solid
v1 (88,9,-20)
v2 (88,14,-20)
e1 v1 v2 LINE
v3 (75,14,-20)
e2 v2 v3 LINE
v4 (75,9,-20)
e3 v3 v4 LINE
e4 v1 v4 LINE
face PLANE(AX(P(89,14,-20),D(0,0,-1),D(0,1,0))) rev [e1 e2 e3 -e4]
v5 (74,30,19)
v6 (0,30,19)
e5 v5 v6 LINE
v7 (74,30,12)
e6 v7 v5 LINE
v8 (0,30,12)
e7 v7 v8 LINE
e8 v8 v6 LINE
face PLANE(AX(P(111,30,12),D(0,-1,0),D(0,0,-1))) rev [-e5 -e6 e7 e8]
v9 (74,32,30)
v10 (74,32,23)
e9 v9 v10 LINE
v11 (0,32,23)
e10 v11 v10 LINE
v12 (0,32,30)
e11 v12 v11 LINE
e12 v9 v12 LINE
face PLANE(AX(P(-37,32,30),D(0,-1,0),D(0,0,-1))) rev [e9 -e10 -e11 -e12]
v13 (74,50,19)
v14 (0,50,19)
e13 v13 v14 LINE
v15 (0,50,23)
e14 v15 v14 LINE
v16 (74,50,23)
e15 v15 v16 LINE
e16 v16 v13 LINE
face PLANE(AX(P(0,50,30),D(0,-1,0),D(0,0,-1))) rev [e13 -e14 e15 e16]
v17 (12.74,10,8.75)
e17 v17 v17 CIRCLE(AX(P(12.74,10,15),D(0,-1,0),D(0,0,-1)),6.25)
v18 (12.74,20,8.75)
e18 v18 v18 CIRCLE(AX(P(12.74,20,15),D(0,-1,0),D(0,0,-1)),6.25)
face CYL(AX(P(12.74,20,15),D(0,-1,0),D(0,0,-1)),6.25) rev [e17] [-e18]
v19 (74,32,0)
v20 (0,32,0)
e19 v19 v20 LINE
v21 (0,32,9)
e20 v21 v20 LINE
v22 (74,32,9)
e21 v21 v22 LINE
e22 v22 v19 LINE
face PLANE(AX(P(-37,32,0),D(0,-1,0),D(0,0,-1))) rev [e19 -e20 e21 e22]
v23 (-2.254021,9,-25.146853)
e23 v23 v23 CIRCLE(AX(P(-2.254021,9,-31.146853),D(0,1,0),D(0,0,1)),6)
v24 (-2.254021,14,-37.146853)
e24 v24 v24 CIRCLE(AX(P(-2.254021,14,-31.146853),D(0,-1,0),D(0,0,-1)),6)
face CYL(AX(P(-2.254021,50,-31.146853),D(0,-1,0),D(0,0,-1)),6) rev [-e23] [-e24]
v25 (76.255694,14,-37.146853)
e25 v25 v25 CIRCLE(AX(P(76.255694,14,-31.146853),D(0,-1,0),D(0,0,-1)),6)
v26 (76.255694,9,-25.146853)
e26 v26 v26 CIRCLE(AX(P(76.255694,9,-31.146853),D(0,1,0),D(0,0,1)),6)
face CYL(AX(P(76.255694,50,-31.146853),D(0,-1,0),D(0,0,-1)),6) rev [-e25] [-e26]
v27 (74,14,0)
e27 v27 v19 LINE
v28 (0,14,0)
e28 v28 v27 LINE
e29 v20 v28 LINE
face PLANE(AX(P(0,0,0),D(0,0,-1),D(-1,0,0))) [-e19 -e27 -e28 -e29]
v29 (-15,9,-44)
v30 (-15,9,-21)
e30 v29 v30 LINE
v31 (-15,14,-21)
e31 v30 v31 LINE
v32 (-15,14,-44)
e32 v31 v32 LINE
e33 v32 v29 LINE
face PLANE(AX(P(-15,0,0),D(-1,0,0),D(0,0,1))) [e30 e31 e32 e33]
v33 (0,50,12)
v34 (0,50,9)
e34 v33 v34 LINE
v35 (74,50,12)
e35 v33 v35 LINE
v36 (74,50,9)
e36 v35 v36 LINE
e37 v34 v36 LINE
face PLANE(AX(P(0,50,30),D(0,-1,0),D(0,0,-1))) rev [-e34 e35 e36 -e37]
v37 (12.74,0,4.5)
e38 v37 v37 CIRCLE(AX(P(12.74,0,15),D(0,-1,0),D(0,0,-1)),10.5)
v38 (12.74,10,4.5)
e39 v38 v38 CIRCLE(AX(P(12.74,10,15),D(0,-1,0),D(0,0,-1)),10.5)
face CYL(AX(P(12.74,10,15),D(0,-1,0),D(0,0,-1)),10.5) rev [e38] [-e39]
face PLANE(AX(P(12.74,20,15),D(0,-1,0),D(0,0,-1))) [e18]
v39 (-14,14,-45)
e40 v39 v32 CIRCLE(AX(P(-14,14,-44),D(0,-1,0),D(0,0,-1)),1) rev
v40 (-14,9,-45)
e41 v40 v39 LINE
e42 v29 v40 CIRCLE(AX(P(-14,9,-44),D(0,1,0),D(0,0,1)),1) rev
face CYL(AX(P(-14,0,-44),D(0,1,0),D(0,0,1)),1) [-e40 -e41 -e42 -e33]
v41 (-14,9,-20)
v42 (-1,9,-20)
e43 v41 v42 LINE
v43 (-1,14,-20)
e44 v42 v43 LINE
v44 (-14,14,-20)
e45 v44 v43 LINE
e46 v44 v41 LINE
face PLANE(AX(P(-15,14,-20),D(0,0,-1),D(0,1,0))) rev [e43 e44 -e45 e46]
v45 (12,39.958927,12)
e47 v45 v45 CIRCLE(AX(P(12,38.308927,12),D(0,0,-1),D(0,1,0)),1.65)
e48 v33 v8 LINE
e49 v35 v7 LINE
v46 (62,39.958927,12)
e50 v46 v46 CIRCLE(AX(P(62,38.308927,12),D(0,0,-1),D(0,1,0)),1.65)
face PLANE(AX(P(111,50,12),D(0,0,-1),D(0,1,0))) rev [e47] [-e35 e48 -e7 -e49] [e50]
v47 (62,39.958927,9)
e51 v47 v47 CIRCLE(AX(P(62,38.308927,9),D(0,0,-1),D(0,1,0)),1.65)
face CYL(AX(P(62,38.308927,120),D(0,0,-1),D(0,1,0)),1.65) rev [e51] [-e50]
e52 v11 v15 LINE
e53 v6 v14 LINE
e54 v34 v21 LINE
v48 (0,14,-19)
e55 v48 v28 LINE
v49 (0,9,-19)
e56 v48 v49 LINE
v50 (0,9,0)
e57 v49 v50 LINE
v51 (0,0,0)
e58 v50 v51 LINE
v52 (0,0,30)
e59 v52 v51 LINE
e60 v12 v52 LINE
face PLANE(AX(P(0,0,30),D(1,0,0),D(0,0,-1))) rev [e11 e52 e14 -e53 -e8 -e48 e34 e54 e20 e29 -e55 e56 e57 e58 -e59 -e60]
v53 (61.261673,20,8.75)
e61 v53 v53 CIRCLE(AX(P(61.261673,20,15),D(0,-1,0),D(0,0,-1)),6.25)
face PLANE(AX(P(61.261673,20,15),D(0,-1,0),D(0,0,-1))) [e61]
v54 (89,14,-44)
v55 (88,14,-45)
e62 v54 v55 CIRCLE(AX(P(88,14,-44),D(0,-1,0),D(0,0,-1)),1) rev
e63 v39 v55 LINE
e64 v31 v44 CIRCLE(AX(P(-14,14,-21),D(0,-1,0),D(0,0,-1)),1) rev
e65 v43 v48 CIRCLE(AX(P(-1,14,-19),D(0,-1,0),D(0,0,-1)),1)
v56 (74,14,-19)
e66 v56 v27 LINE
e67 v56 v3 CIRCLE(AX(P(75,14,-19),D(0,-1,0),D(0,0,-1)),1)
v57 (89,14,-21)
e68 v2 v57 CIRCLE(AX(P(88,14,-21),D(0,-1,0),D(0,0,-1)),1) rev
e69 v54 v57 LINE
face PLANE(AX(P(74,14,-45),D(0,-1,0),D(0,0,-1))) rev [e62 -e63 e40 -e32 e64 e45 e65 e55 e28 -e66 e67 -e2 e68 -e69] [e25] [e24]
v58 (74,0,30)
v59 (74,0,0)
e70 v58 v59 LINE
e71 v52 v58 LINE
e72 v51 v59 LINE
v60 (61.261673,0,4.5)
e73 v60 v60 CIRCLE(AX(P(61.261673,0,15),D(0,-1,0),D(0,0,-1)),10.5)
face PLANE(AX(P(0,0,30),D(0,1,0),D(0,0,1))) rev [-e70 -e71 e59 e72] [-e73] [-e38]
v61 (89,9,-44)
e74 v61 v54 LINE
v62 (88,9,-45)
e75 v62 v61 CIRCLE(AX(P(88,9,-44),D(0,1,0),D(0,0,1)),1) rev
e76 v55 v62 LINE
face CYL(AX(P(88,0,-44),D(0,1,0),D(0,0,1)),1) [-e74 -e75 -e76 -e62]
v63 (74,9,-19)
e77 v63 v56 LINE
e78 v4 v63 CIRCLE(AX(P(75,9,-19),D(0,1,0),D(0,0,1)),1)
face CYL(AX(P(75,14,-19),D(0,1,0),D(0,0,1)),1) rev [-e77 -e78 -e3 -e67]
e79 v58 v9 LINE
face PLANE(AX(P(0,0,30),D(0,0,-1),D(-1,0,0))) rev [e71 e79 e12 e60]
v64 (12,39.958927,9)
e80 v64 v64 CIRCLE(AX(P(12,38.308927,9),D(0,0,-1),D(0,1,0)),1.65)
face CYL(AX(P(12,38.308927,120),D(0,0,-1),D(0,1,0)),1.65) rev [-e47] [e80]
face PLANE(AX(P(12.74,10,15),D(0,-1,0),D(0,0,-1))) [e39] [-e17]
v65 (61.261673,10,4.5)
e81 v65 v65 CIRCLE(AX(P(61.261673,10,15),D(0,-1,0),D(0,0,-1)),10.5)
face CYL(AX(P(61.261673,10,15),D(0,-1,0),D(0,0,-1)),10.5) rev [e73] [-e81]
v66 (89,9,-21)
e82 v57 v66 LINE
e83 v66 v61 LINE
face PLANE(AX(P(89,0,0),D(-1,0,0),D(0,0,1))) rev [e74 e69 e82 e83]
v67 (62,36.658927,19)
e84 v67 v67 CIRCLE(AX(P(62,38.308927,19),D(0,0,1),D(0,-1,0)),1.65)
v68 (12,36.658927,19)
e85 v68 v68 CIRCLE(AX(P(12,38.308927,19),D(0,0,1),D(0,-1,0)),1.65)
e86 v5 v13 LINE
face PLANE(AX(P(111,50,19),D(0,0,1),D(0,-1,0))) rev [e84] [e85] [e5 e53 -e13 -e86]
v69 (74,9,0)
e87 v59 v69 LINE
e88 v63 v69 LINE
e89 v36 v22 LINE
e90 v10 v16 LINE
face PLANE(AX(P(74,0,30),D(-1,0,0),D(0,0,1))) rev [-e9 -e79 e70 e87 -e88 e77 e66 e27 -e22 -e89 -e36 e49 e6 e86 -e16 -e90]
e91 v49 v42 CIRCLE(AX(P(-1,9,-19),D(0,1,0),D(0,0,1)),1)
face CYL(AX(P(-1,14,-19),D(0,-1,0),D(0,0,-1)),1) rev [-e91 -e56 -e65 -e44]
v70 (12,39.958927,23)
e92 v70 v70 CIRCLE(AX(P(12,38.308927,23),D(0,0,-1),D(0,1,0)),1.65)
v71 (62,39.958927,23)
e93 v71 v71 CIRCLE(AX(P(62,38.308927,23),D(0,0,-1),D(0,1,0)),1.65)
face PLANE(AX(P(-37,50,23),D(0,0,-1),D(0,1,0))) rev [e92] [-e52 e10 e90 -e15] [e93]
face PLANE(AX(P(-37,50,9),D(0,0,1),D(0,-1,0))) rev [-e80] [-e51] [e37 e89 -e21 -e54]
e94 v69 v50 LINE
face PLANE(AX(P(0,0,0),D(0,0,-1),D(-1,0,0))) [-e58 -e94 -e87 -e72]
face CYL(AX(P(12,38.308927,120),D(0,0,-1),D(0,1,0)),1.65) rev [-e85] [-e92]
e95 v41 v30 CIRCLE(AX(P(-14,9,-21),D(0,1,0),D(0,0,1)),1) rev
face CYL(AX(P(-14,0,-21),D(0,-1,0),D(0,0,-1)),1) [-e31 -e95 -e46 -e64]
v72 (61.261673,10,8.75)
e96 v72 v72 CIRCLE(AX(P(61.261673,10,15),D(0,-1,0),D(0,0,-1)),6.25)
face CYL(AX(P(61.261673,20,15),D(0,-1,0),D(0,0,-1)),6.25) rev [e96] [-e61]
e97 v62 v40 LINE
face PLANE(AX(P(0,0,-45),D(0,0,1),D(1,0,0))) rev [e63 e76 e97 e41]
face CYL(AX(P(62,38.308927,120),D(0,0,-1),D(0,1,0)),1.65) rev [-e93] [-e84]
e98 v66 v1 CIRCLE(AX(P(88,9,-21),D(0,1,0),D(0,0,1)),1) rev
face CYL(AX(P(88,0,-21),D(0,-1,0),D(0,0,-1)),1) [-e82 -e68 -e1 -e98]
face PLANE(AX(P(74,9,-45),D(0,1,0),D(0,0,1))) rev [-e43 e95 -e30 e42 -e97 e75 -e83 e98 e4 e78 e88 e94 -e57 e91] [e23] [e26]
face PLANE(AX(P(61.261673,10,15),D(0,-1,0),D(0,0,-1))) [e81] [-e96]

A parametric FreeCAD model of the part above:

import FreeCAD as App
import Part
import Sketcher
Q = App.Units.Quantity


def edges_at(feature, points):
    """Names of the edges that pass closest to the given points."""
    edges = feature.Shape.Edges
    near = lambda p: min(range(len(edges)), key=lambda i: edges[i].distToShape(Part.Vertex(*p))[0])
    return sorted({f"Edge{near(p) + 1}" for p in points})


def add_polygon(sketch, points):
    """Adds a closed chain of lines whose ends are joined by coincident constraints."""
    first, n = sketch.GeometryCount, len(points)
    for a, b in zip(points, points[1:] + points[:1]):
        sketch.addGeometry(Part.LineSegment(App.Vector(*a, 0), App.Vector(*b, 0)), False)
    for i in range(n):
        sketch.addConstraint(Sketcher.Constraint("Coincident", first + i, 2, first + (i + 1) % n, 1))

doc = App.newDocument("Part")
body = doc.addObject("PartDesign::Body", "Body")

sketch1 = doc.addObject("Sketcher::SketchObject", "Sketch")
body.addObject(sketch1)
sketch1.AttachmentSupport = (doc.XY_Plane, [""])
sketch1.MapMode = "FlatFace"
add_polygon(sketch1, [(0, 50), (0, 0), (74, 0), (74, 50)])
sketch1.addConstraint([
    Sketcher.Constraint("Vertical", 0),
    Sketcher.Constraint("Horizontal", 1),
    Sketcher.Constraint("Vertical", 2),
    Sketcher.Constraint("Horizontal", 3),
    Sketcher.Constraint("Coincident", 0, 2, -1, 1),
    Sketcher.Constraint("DistanceX", 1, 1, 1, 2, Q("74 mm")),
    Sketcher.Constraint("DistanceY", 0, 2, 0, 1, Q("50 mm")),
])
pad1 = doc.addObject("PartDesign::Pad", "Pad")
body.addObject(pad1)
pad1.Profile = sketch1
pad1.Length = 30

sketch2 = doc.addObject("Sketcher::SketchObject", "Sketch001")
body.addObject(sketch2)
sketch2.AttachmentSupport = (doc.XZ_Plane, [""])
sketch2.MapMode = "FlatFace"
sketch2.addGeometry([
    Part.Circle(App.Vector(13, 15, 0), App.Vector(0, 0, 1), 10),
    Part.Circle(App.Vector(61, 15, 0), App.Vector(0, 0, 1), 10),
], False)
sketch2.addConstraint([
    Sketcher.Constraint("Equal", 0, 1),
    Sketcher.Constraint("Horizontal", 0, 3, 1, 3),
    Sketcher.Constraint("Diameter", 0, Q("21 mm")),
    Sketcher.Constraint("DistanceY", -1, 1, 0, 3, Q("15 mm")),
    Sketcher.Constraint("DistanceX", -1, 1, 0, 3, Q("12.74 mm")),
    Sketcher.Constraint("DistanceX", -1, 1, 1, 3, Q("61.261673 mm")),
])
pocket1 = doc.addObject("PartDesign::Pocket", "Pocket")
body.addObject(pocket1)
pocket1.Profile = sketch2
pocket1.Length = 10

sketch3 = doc.addObject("Sketcher::SketchObject", "Sketch002")
body.addObject(sketch3)
sketch3.AttachmentSupport = (doc.XZ_Plane, [""])
sketch3.MapMode = "FlatFace"
sketch3.AttachmentOffset = App.Placement(App.Vector(0, 0, -10), App.Rotation())
sketch3.addGeometry([
    Part.Circle(App.Vector(13, 15, 0), App.Vector(0, 0, 1), 6),
    Part.Circle(App.Vector(61, 15, 0), App.Vector(0, 0, 1), 6),
], False)
sketch3.addConstraint([
    Sketcher.Constraint("Equal", 0, 1),
    Sketcher.Constraint("Horizontal", 0, 3, 1, 3),
    Sketcher.Constraint("Diameter", 0, Q("12.5 mm")),
    Sketcher.Constraint("DistanceY", -1, 1, 0, 3, Q("15 mm")),
    Sketcher.Constraint("DistanceX", -1, 1, 0, 3, Q("12.74 mm")),
    Sketcher.Constraint("DistanceX", -1, 1, 1, 3, Q("61.261673 mm")),
])
pocket2 = doc.addObject("PartDesign::Pocket", "Pocket001")
body.addObject(pocket2)
pocket2.Profile = sketch3
pocket2.Length = 10

sketch4 = doc.addObject("Sketcher::SketchObject", "Sketch003")
body.addObject(sketch4)
sketch4.AttachmentSupport = (doc.YZ_Plane, [""])
sketch4.MapMode = "FlatFace"
add_polygon(sketch4, [(50, 12), (30, 12), (30, 19), (50, 19)])
sketch4.addConstraint([
    Sketcher.Constraint("Horizontal", 0),
    Sketcher.Constraint("Vertical", 1),
    Sketcher.Constraint("Horizontal", 2),
    Sketcher.Constraint("Vertical", 3),
    Sketcher.Constraint("DistanceX", 0, 2, 0, 1, Q("20 mm")),
    Sketcher.Constraint("DistanceY", 1, 1, 1, 2, Q("7 mm")),
    Sketcher.Constraint("DistanceX", -1, 1, 0, 2, Q("30 mm")),
    Sketcher.Constraint("DistanceY", -1, 1, 0, 2, Q("12 mm")),
])
pocket3 = doc.addObject("PartDesign::Pocket", "Pocket002")
body.addObject(pocket3)
pocket3.Profile = sketch4
pocket3.Length = 111
pocket3.Reversed = True

sketch5 = doc.addObject("Sketcher::SketchObject", "Sketch004")
body.addObject(sketch5)
sketch5.AttachmentSupport = (doc.YZ_Plane, [""])
sketch5.MapMode = "FlatFace"
sketch5.AttachmentOffset = App.Placement(App.Vector(0, 0, 74), App.Rotation())
add_polygon(sketch5, [(50, 30), (32, 30), (32, 23), (50, 23)])
add_polygon(sketch5, [(50, 9), (32, 9), (32, 0), (50, 0)])
sketch5.addConstraint([
    Sketcher.Constraint("Horizontal", 0),
    Sketcher.Constraint("Vertical", 1),
    Sketcher.Constraint("Horizontal", 2),
    Sketcher.Constraint("Vertical", 3),
    Sketcher.Constraint("Horizontal", 4),
    Sketcher.Constraint("Vertical", 5),
    Sketcher.Constraint("Horizontal", 6),
    Sketcher.Constraint("Vertical", 7),
    Sketcher.Constraint("PointOnObject", 5, 2, -1),
    Sketcher.Constraint("Vertical", 1, 2, 4, 2),
    Sketcher.Constraint("Vertical", 3, 2, 6, 2),
    Sketcher.Constraint("DistanceX", 0, 2, 0, 1, Q("18 mm")),
    Sketcher.Constraint("DistanceY", 1, 2, 1, 1, Q("7 mm")),
    Sketcher.Constraint("DistanceY", 5, 2, 5, 1, Q("9 mm")),
    Sketcher.Constraint("DistanceX", -1, 1, 0, 2, Q("32 mm")),
    Sketcher.Constraint("DistanceY", -1, 1, 0, 2, Q("30 mm")),
])
pocket4 = doc.addObject("PartDesign::Pocket", "Pocket003")
body.addObject(pocket4)
pocket4.Profile = sketch5
pocket4.Length = 111

sketch6 = doc.addObject("Sketcher::SketchObject", "Sketch005")
body.addObject(sketch6)
sketch6.AttachmentSupport = (doc.XY_Plane, [""])
sketch6.MapMode = "FlatFace"
sketch6.AttachmentOffset = App.Placement(App.Vector(0, 0, 9), App.Rotation())
sketch6.addGeometry([
    Part.Circle(App.Vector(62, 38.3, 0), App.Vector(0, 0, 1), 1.6),
    Part.Circle(App.Vector(12, 38.3, 0), App.Vector(0, 0, 1), 1.6),
], False)
sketch6.addConstraint([
    Sketcher.Constraint("Equal", 0, 1),
    Sketcher.Constraint("Horizontal", 0, 3, 1, 3),
    Sketcher.Constraint("Diameter", 0, Q("3.3 mm")),
    Sketcher.Constraint("DistanceX", -1, 1, 0, 3, Q("62 mm")),
    Sketcher.Constraint("DistanceX", -1, 1, 1, 3, Q("12 mm")),
    Sketcher.Constraint("DistanceY", -1, 1, 0, 3, Q("38.308927 mm")),
])
pocket5 = doc.addObject("PartDesign::Pocket", "Pocket004")
body.addObject(pocket5)
pocket5.Profile = sketch6
pocket5.Length = 111
pocket5.Reversed = True

sketch7 = doc.addObject("Sketcher::SketchObject", "Sketch006")
body.addObject(sketch7)
sketch7.AttachmentSupport = (doc.XY_Plane, [""])
sketch7.MapMode = "FlatFace"
add_polygon(sketch7, [(74, 14), (74, 9), (0, 9), (0, 14)])
sketch7.addConstraint([
    Sketcher.Constraint("Vertical", 0),
    Sketcher.Constraint("Horizontal", 1),
    Sketcher.Constraint("Vertical", 2),
    Sketcher.Constraint("Horizontal", 3),
    Sketcher.Constraint("PointOnObject", 1, 2, -2),
    Sketcher.Constraint("DistanceX", 1, 2, 1, 1, Q("74 mm")),
    Sketcher.Constraint("DistanceY", 0, 2, 0, 1, Q("5 mm")),
    Sketcher.Constraint("DistanceY", -1, 1, 0, 2, Q("9 mm")),
])
pad2 = doc.addObject("PartDesign::Pad", "Pad001")
body.addObject(pad2)
pad2.Profile = sketch7
pad2.Length = 45
pad2.Reversed = True

sketch8 = doc.addObject("Sketcher::SketchObject", "Sketch007")
body.addObject(sketch8)
sketch8.AttachmentSupport = (doc.YZ_Plane, [""])
sketch8.MapMode = "FlatFace"
sketch8.AttachmentOffset = App.Placement(App.Vector(0, 0, 74), App.Rotation())
add_polygon(sketch8, [(14, -20), (9, -20), (9, -45), (14, -45)])
sketch8.addConstraint([
    Sketcher.Constraint("Horizontal", 0),
    Sketcher.Constraint("Vertical", 1),
    Sketcher.Constraint("Horizontal", 2),
    Sketcher.Constraint("Vertical", 3),
    Sketcher.Constraint("DistanceX", 0, 2, 0, 1, Q("5 mm")),
    Sketcher.Constraint("DistanceY", 1, 2, 1, 1, Q("25 mm")),
    Sketcher.Constraint("DistanceX", -1, 1, 0, 2, Q("9 mm")),
    Sketcher.Constraint("DistanceY", 0, 2, -1, 1, Q("20 mm")),
])
pad3 = doc.addObject("PartDesign::Pad", "Pad002")
body.addObject(pad3)
pad3.Profile = sketch8
pad3.Length = 15

sketch9 = doc.addObject("Sketcher::SketchObject", "Sketch008")
body.addObject(sketch9)
sketch9.AttachmentSupport = (doc.YZ_Plane, [""])
sketch9.MapMode = "FlatFace"
add_polygon(sketch9, [(14, -45), (9, -45), (9, -20), (14, -20)])
sketch9.addConstraint([
    Sketcher.Constraint("Horizontal", 0),
    Sketcher.Constraint("Vertical", 1),
    Sketcher.Constraint("Horizontal", 2),
    Sketcher.Constraint("Vertical", 3),
    Sketcher.Constraint("DistanceX", 0, 2, 0, 1, Q("5 mm")),
    Sketcher.Constraint("DistanceY", 1, 1, 1, 2, Q("25 mm")),
    Sketcher.Constraint("DistanceX", -1, 1, 0, 2, Q("9 mm")),
    Sketcher.Constraint("DistanceY", 0, 2, -1, 1, Q("45 mm")),
])
pad4 = doc.addObject("PartDesign::Pad", "Pad003")
body.addObject(pad4)
pad4.Profile = sketch9
pad4.Length = 15
pad4.Reversed = True

sketch10 = doc.addObject("Sketcher::SketchObject", "Sketch009")
body.addObject(sketch10)
sketch10.AttachmentSupport = (doc.XZ_Plane, [""])
sketch10.MapMode = "FlatFace"
sketch10.addGeometry([
    Part.Circle(App.Vector(-2, -31, 0), App.Vector(0, 0, 1), 6),
    Part.Circle(App.Vector(76, -31, 0), App.Vector(0, 0, 1), 6),
], False)
sketch10.addConstraint([
    Sketcher.Constraint("Equal", 0, 1),
    Sketcher.Constraint("Horizontal", 0, 3, 1, 3),
    Sketcher.Constraint("Diameter", 0, Q("12 mm")),
    Sketcher.Constraint("DistanceX", 0, 3, -1, 1, Q("2.254021 mm")),
    Sketcher.Constraint("DistanceY", 0, 3, -1, 1, Q("31.146853 mm")),
    Sketcher.Constraint("DistanceX", -1, 1, 1, 3, Q("76.255694 mm")),
])
pocket6 = doc.addObject("PartDesign::Pocket", "Pocket005")
body.addObject(pocket6)
pocket6.Profile = sketch10
pocket6.Length = 50
doc.recompute()

fillet = doc.addObject("PartDesign::Fillet", "Fillet")
body.addObject(fillet)
fillet.Base = (pocket6, edges_at(pocket6, [
    (74, 11.5, -20),
    (89, 11.5, -45),
    (89, 11.5, -20),
    (0, 11.5, -20),
    (-15, 11.5, -45),
    (-15, 11.5, -20),
]))
fillet.Radius = 1

doc.recompute()
